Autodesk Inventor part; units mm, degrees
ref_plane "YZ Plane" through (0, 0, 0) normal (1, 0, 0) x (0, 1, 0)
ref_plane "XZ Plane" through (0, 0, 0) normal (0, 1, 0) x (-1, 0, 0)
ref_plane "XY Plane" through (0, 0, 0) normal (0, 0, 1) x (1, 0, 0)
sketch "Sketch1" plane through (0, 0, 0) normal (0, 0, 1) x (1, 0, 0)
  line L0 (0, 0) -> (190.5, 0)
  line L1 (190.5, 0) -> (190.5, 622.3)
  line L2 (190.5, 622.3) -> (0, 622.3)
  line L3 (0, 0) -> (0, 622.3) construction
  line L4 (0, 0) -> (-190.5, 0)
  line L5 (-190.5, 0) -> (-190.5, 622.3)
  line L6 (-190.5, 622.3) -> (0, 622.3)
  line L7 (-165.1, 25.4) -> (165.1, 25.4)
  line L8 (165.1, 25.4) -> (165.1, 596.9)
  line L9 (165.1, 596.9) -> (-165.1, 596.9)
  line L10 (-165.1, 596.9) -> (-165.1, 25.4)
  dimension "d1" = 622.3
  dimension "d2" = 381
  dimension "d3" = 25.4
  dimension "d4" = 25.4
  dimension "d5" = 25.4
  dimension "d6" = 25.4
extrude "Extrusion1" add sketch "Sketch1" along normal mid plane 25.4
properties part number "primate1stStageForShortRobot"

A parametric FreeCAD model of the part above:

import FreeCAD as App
import Part
import Sketcher

V = App.Vector
Q = App.Units.Quantity


def add_polygon(sketch, points):
    """Adds a closed chain of lines whose ends are joined by coincident constraints."""
    first, n = sketch.GeometryCount, len(points)
    for a, b in zip(points, points[1:] + points[:1]):
        sketch.addGeometry(Part.LineSegment(App.Vector(*a, 0), App.Vector(*b, 0)), False)
    for i in range(n):
        sketch.addConstraint(Sketcher.Constraint("Coincident", first + i, 2, first + (i + 1) % n, 1))

doc = App.newDocument("Part")
body = doc.addObject("PartDesign::Body", "Body")

# Sketch on XY plane
sketch1 = doc.addObject("Sketcher::SketchObject", "Sketch")
body.addObject(sketch1)
sketch1.AttachmentSupport = (doc.XY_Plane, [""])
sketch1.MapMode = "FlatFace"
add_polygon(sketch1, [(-190, 0), (190, 0), (190, 622), (-190, 622)])  # lines 0-3
add_polygon(sketch1, [(165, 25), (-165, 25), (-165, 597), (165, 597)])  # lines 4-7
sketch1.addConstraint([
    Sketcher.Constraint("Horizontal", 0),
    Sketcher.Constraint("Vertical", 1),
    Sketcher.Constraint("Horizontal", 2),
    Sketcher.Constraint("Vertical", 3),
    Sketcher.Constraint("Horizontal", 4),
    Sketcher.Constraint("Vertical", 5),
    Sketcher.Constraint("Horizontal", 6),
    Sketcher.Constraint("Vertical", 7),
    Sketcher.Constraint("Symmetric", 0, 2, 3, 2, -1, 1),
    Sketcher.Constraint("DistanceX", 0, 1, 0, 2, Q("15 in")),
    Sketcher.Constraint("DistanceY", 1, 1, 1, 2, Q("24.5 in")),
    Sketcher.Constraint("DistanceY", -1, 1, 4, 2, Q("1 in")),
    Sketcher.Constraint("DistanceX", 3, 2, 4, 2, Q("1 in")),
    Sketcher.Constraint("DistanceY", 5, 2, 2, 2, Q("1 in")),
    Sketcher.Constraint("DistanceX", 6, 2, 1, 2, Q("1 in")),
])
pad1 = doc.addObject("PartDesign::Pad", "Pad")
body.addObject(pad1)
pad1.Profile = sketch1
pad1.Length = Q("1 in")
pad1.Midplane = True

doc.recompute()
